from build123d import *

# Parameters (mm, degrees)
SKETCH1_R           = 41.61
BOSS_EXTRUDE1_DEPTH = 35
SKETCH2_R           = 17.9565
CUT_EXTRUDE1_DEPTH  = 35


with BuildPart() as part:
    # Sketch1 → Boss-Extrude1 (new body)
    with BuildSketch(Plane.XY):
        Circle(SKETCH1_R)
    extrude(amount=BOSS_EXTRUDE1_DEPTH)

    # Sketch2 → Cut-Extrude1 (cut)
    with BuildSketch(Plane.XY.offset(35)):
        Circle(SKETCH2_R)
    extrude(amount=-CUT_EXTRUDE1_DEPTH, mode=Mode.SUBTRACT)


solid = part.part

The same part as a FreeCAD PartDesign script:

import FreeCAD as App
import Part
import Sketcher
Q = App.Units.Quantity

doc = App.newDocument("Part")
body = doc.addObject("PartDesign::Body", "Body")

sketch1 = body.newObject("Sketcher::SketchObject", "Sketch")
sketch1.AttachmentSupport = (doc.getObject("XY_Plane"), [""])
sketch1.MapMode = "FlatFace"
sketch1.addGeometry(Part.Circle(App.Vector(0, 0, 0), App.Vector(0, 0, 1), 41.61), False)
sketch1.addConstraint([
    Sketcher.Constraint("Coincident", 0, 3, -1, 1),
    Sketcher.Constraint("Diameter", 0, Q("83.22 mm")),
])
pad1 = body.newObject("PartDesign::Pad", "Pad")
pad1.Profile = sketch1
pad1.Length = 35

sketch2 = body.newObject("Sketcher::SketchObject", "Sketch001")
sketch2.AttachmentSupport = (doc.getObject("XY_Plane"), [""])
sketch2.MapMode = "FlatFace"
sketch2.AttachmentOffset = App.Placement(App.Vector(0, 0, 35), App.Rotation())
sketch2.addGeometry(Part.Circle(App.Vector(0, 0, 0), App.Vector(0, 0, 1), 17.9565), False)
sketch2.addConstraint([
    Sketcher.Constraint("Coincident", 0, 3, -1, 1),
    Sketcher.Constraint("Diameter", 0, Q("35.913 mm")),
])
pocket1 = body.newObject("PartDesign::Pocket", "Pocket")
pocket1.Profile = sketch2
pocket1.Length = 35

doc.recompute()
